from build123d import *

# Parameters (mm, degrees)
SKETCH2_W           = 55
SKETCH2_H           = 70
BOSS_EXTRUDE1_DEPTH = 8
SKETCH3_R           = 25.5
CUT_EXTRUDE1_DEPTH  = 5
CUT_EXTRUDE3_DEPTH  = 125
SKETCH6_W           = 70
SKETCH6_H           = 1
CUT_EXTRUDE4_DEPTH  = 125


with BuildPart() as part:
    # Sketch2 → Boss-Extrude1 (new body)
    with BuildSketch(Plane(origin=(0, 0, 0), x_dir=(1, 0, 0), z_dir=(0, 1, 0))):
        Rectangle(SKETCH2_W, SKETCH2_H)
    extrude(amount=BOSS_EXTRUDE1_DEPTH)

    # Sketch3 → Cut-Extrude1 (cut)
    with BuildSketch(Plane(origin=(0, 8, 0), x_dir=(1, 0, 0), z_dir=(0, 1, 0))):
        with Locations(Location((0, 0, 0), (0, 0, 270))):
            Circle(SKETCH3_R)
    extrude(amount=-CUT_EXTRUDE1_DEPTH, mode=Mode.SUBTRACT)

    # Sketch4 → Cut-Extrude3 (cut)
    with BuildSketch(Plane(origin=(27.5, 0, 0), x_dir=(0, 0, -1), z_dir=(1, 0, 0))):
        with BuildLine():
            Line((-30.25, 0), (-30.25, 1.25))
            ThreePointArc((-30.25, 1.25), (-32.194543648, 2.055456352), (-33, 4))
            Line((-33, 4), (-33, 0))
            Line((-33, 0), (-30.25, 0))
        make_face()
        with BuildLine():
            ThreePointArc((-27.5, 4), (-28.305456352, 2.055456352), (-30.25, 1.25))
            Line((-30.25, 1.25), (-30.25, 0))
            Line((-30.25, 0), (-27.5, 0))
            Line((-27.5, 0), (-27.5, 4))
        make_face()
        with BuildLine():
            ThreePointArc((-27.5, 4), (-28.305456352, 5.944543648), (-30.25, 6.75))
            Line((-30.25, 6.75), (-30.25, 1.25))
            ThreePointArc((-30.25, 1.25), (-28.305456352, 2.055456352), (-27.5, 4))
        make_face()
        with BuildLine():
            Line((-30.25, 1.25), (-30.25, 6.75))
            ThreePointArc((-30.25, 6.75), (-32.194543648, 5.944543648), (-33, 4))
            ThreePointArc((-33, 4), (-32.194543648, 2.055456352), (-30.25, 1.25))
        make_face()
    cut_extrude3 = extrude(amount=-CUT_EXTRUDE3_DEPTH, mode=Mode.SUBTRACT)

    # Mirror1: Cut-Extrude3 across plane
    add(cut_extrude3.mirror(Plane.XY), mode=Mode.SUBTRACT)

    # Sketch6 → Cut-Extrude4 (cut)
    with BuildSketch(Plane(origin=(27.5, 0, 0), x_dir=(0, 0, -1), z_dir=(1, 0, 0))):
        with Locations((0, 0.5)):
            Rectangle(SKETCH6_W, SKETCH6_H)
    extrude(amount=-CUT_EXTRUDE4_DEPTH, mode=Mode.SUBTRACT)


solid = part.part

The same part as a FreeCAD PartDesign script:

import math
import FreeCAD as App
import Part
import Sketcher

V = App.Vector


def add_polygon(sketch, points):
    """Adds a closed chain of lines whose ends are joined by coincident constraints."""
    first, n = sketch.GeometryCount, len(points)
    for a, b in zip(points, points[1:] + points[:1]):
        sketch.addGeometry(Part.LineSegment(App.Vector(*a, 0), App.Vector(*b, 0)), False)
    for i in range(n):
        sketch.addConstraint(Sketcher.Constraint("Coincident", first + i, 2, first + (i + 1) % n, 1))

doc = App.newDocument("Part")
body = doc.addObject("PartDesign::Body", "Body")

# Sketch on XZ plane
sketch1 = body.newObject("Sketcher::SketchObject", "Sketch")
sketch1.AttachmentSupport = (doc.getObject("XZ_Plane"), [""])
sketch1.MapMode = "FlatFace"
add_polygon(sketch1, [(-28, -35), (-28, 35), (28, 35), (28, -35)])  # lines 0-3
sketch1.addConstraint([
    Sketcher.Constraint("Vertical", 0),
    Sketcher.Constraint("Horizontal", 1),
    Sketcher.Constraint("Vertical", 2),
    Sketcher.Constraint("Horizontal", 3),
    Sketcher.Constraint("Symmetric", 0, 2, 2, 2, -1, 1),
    Sketcher.Constraint("DistanceX", 1, 1, 1, 2, 55.0),
    Sketcher.Constraint("DistanceY", 0, 1, 0, 2, 70.0),
])
pad1 = body.newObject("PartDesign::Pad", "Pad")
pad1.Profile = sketch1
pad1.Length = 8
pad1.Reversed = True

# Sketch on XZ plane
sketch2 = body.newObject("Sketcher::SketchObject", "Sketch001")
sketch2.AttachmentSupport = (doc.getObject("XZ_Plane"), [""])
sketch2.MapMode = "FlatFace"
sketch2.AttachmentOffset = App.Placement(V(0, 0, -8), App.Rotation())
sketch2.addGeometry(Part.Circle(V(0, 0, 0), V(0, 0, 1), 26), False)
sketch2.addConstraint([
    Sketcher.Constraint("Coincident", 0, 3, -1, 1),
    Sketcher.Constraint("Diameter", 0, 51.0),
])
pocket1 = body.newObject("PartDesign::Pocket", "Pocket")
pocket1.Profile = sketch2
pocket1.Length = 5
pocket1.Reversed = True

# Sketch on YZ plane
sketch3 = body.newObject("Sketcher::SketchObject", "Sketch002")
sketch3.AttachmentSupport = (doc.getObject("YZ_Plane"), [""])
sketch3.MapMode = "FlatFace"
sketch3.AttachmentOffset = App.Placement(V(0, 0, 27.5), App.Rotation())
sketch3.addGeometry([
    Part.ArcOfCircle(Part.Circle(V(4, 30.2, 0), V(0, 0, 1), 2.8), math.radians(0), math.radians(90)),  # 0
    Part.LineSegment(V(4, 33, 0), V(0, 33, 0)),  # 1
    Part.LineSegment(V(0, 33, 0), V(0, 27.5, 0)),  # 2
    Part.LineSegment(V(0, 27.5, 0), V(4, 27.5, 0)),  # 3
    Part.ArcOfCircle(Part.Circle(V(4, 30.3, 0), V(0, 0, 1), 2.8), math.radians(-90), math.radians(0)),  # 4
], False)
sketch3.addConstraint([
    Sketcher.Constraint("Tangent", 0, 2, 1, 1),
    Sketcher.Constraint("Coincident", 1, 2, 2, 1),
    Sketcher.Constraint("Coincident", 2, 2, 3, 1),
    Sketcher.Constraint("Tangent", 3, 2, 4, 1),
    Sketcher.Constraint("Tangent", 4, 2, 0, 1),
    Sketcher.Constraint("Horizontal", 1),
    Sketcher.Constraint("Vertical", 2),
    Sketcher.Constraint("Horizontal", 3),
    Sketcher.Constraint("Equal", 0, 4),
    Sketcher.Constraint("PointOnObject", 1, 2, -2),
    Sketcher.Constraint("Horizontal", 0, 3, 4, 2),
    Sketcher.Constraint("DistanceX", 1, 2, 1, 1, 4.0),
    Sketcher.Constraint("Radius", 0, 2.75),
    Sketcher.Constraint("DistanceY", -1, 1, 0, 2, 33.0),
])
pocket2 = body.newObject("PartDesign::Pocket", "Pocket001")
pocket2.Profile = sketch3
pocket2.Length = 125
doc.recompute()

mirrored = body.newObject("PartDesign::Mirrored", "Mirrored")
mirrored.Originals = [pocket2]
mirrored.MirrorPlane = (doc.getObject("XY_Plane"), [""])
body.Tip = mirrored

# Sketch on YZ plane
sketch4 = body.newObject("Sketcher::SketchObject", "Sketch003")
sketch4.AttachmentSupport = (doc.getObject("YZ_Plane"), [""])
sketch4.MapMode = "FlatFace"
sketch4.AttachmentOffset = App.Placement(V(0, 0, 27.5), App.Rotation())
add_polygon(sketch4, [(1, 35), (0, 35), (0, -35), (1, -35)])  # lines 0-3
sketch4.addConstraint([
    Sketcher.Constraint("Horizontal", 0),
    Sketcher.Constraint("Vertical", 1),
    Sketcher.Constraint("Horizontal", 2),
    Sketcher.Constraint("Vertical", 3),
    Sketcher.Constraint("Symmetric", 0, 2, 1, 2, -1, 1),
    Sketcher.Constraint("DistanceX", 0, 2, 0, 1, 1.0),
    Sketcher.Constraint("DistanceY", 1, 2, 1, 1, 70.0),
])
pocket3 = body.newObject("PartDesign::Pocket", "Pocket002")
pocket3.Profile = sketch4
pocket3.Length = 125

doc.recompute()
